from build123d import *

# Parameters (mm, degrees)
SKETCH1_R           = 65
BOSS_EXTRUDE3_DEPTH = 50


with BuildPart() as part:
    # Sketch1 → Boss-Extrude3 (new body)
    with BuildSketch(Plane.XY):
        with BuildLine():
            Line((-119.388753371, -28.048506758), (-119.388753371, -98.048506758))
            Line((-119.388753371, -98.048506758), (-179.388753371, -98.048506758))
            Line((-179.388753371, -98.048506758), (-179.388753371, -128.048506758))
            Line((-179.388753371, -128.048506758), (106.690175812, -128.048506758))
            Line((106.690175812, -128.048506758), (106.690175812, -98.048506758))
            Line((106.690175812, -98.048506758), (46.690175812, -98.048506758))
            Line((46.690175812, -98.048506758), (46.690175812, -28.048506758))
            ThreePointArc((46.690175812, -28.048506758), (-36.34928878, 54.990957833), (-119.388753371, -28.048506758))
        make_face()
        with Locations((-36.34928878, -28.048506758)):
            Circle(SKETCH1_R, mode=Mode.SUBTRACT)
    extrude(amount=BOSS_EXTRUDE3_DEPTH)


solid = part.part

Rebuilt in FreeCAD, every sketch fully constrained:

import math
import FreeCAD as App
import Part
import Sketcher

V = App.Vector

doc = App.newDocument("Part")
body = doc.addObject("PartDesign::Body", "Body")

# Sketch on XY plane
sketch1 = body.newObject("Sketcher::SketchObject", "Sketch")
sketch1.AttachmentSupport = (doc.getObject("XY_Plane"), [""])
sketch1.MapMode = "FlatFace"
sketch1.addGeometry(Part.LineSegment(V(-119, -28, 0), V(-119, -98, 0)), False)
sketch1.addGeometry(Part.LineSegment(V(-119, -98, 0), V(-179, -98, 0)), False)
sketch1.addGeometry(Part.LineSegment(V(-179, -98, 0), V(-179, -128, 0)), False)
sketch1.addGeometry(Part.LineSegment(V(-179, -128, 0), V(107, -128, 0)), False)
sketch1.addGeometry(Part.LineSegment(V(107, -128, 0), V(107, -98, 0)), False)
sketch1.addGeometry(Part.LineSegment(V(107, -98, 0), V(47, -98, 0)), False)
sketch1.addGeometry(Part.LineSegment(V(47, -98, 0), V(47, -28, 0)), False)
sketch1.addGeometry(Part.ArcOfCircle(Part.Circle(V(-36, -28, 0), V(0, 0, 1), 83), math.radians(0), math.radians(180)), False)
sketch1.addGeometry(Part.Circle(V(-36, -28, 0), V(0, 0, 1), 65), False)
sketch1.addConstraint(Sketcher.Constraint("Coincident", 0, 2, 1, 1))
sketch1.addConstraint(Sketcher.Constraint("Coincident", 1, 2, 2, 1))
sketch1.addConstraint(Sketcher.Constraint("Coincident", 2, 2, 3, 1))
sketch1.addConstraint(Sketcher.Constraint("Coincident", 3, 2, 4, 1))
sketch1.addConstraint(Sketcher.Constraint("Coincident", 4, 2, 5, 1))
sketch1.addConstraint(Sketcher.Constraint("Coincident", 5, 2, 6, 1))
sketch1.addConstraint(Sketcher.Constraint("Tangent", 6, 2, 7, 1))
sketch1.addConstraint(Sketcher.Constraint("Tangent", 7, 2, 0, 1))
sketch1.addConstraint(Sketcher.Constraint("Vertical", 0))
sketch1.addConstraint(Sketcher.Constraint("Horizontal", 1))
sketch1.addConstraint(Sketcher.Constraint("Vertical", 2))
sketch1.addConstraint(Sketcher.Constraint("Horizontal", 3))
sketch1.addConstraint(Sketcher.Constraint("Vertical", 4))
sketch1.addConstraint(Sketcher.Constraint("Horizontal", 5))
sketch1.addConstraint(Sketcher.Constraint("Vertical", 6))
sketch1.addConstraint(Sketcher.Constraint("Coincident", 8, 3, 7, 3))
sketch1.addConstraint(Sketcher.Constraint("Horizontal", 1, 2, 4, 2))
sketch1.addConstraint(Sketcher.Constraint("Equal", 1, 5))
sketch1.addConstraint(Sketcher.Constraint("Diameter", 8, 130.0))
sketch1.addConstraint(Sketcher.Constraint("DistanceX", 1, 2, 1, 1, 60.0))
sketch1.addConstraint(Sketcher.Constraint("DistanceY", 0, 2, 0, 1, 70.0))
sketch1.addConstraint(Sketcher.Constraint("DistanceY", 2, 2, 2, 1, 30.0))
sketch1.addConstraint(Sketcher.Constraint("Radius", 7, 83.039465))
sketch1.addConstraint(Sketcher.Constraint("DistanceX", 7, 3, -1, 1, 36.349289))
sketch1.addConstraint(Sketcher.Constraint("DistanceY", 7, 3, -1, 1, 28.048507))
pad1 = body.newObject("PartDesign::Pad", "Pad")
pad1.Profile = sketch1
pad1.Length = 50

doc.recompute()
